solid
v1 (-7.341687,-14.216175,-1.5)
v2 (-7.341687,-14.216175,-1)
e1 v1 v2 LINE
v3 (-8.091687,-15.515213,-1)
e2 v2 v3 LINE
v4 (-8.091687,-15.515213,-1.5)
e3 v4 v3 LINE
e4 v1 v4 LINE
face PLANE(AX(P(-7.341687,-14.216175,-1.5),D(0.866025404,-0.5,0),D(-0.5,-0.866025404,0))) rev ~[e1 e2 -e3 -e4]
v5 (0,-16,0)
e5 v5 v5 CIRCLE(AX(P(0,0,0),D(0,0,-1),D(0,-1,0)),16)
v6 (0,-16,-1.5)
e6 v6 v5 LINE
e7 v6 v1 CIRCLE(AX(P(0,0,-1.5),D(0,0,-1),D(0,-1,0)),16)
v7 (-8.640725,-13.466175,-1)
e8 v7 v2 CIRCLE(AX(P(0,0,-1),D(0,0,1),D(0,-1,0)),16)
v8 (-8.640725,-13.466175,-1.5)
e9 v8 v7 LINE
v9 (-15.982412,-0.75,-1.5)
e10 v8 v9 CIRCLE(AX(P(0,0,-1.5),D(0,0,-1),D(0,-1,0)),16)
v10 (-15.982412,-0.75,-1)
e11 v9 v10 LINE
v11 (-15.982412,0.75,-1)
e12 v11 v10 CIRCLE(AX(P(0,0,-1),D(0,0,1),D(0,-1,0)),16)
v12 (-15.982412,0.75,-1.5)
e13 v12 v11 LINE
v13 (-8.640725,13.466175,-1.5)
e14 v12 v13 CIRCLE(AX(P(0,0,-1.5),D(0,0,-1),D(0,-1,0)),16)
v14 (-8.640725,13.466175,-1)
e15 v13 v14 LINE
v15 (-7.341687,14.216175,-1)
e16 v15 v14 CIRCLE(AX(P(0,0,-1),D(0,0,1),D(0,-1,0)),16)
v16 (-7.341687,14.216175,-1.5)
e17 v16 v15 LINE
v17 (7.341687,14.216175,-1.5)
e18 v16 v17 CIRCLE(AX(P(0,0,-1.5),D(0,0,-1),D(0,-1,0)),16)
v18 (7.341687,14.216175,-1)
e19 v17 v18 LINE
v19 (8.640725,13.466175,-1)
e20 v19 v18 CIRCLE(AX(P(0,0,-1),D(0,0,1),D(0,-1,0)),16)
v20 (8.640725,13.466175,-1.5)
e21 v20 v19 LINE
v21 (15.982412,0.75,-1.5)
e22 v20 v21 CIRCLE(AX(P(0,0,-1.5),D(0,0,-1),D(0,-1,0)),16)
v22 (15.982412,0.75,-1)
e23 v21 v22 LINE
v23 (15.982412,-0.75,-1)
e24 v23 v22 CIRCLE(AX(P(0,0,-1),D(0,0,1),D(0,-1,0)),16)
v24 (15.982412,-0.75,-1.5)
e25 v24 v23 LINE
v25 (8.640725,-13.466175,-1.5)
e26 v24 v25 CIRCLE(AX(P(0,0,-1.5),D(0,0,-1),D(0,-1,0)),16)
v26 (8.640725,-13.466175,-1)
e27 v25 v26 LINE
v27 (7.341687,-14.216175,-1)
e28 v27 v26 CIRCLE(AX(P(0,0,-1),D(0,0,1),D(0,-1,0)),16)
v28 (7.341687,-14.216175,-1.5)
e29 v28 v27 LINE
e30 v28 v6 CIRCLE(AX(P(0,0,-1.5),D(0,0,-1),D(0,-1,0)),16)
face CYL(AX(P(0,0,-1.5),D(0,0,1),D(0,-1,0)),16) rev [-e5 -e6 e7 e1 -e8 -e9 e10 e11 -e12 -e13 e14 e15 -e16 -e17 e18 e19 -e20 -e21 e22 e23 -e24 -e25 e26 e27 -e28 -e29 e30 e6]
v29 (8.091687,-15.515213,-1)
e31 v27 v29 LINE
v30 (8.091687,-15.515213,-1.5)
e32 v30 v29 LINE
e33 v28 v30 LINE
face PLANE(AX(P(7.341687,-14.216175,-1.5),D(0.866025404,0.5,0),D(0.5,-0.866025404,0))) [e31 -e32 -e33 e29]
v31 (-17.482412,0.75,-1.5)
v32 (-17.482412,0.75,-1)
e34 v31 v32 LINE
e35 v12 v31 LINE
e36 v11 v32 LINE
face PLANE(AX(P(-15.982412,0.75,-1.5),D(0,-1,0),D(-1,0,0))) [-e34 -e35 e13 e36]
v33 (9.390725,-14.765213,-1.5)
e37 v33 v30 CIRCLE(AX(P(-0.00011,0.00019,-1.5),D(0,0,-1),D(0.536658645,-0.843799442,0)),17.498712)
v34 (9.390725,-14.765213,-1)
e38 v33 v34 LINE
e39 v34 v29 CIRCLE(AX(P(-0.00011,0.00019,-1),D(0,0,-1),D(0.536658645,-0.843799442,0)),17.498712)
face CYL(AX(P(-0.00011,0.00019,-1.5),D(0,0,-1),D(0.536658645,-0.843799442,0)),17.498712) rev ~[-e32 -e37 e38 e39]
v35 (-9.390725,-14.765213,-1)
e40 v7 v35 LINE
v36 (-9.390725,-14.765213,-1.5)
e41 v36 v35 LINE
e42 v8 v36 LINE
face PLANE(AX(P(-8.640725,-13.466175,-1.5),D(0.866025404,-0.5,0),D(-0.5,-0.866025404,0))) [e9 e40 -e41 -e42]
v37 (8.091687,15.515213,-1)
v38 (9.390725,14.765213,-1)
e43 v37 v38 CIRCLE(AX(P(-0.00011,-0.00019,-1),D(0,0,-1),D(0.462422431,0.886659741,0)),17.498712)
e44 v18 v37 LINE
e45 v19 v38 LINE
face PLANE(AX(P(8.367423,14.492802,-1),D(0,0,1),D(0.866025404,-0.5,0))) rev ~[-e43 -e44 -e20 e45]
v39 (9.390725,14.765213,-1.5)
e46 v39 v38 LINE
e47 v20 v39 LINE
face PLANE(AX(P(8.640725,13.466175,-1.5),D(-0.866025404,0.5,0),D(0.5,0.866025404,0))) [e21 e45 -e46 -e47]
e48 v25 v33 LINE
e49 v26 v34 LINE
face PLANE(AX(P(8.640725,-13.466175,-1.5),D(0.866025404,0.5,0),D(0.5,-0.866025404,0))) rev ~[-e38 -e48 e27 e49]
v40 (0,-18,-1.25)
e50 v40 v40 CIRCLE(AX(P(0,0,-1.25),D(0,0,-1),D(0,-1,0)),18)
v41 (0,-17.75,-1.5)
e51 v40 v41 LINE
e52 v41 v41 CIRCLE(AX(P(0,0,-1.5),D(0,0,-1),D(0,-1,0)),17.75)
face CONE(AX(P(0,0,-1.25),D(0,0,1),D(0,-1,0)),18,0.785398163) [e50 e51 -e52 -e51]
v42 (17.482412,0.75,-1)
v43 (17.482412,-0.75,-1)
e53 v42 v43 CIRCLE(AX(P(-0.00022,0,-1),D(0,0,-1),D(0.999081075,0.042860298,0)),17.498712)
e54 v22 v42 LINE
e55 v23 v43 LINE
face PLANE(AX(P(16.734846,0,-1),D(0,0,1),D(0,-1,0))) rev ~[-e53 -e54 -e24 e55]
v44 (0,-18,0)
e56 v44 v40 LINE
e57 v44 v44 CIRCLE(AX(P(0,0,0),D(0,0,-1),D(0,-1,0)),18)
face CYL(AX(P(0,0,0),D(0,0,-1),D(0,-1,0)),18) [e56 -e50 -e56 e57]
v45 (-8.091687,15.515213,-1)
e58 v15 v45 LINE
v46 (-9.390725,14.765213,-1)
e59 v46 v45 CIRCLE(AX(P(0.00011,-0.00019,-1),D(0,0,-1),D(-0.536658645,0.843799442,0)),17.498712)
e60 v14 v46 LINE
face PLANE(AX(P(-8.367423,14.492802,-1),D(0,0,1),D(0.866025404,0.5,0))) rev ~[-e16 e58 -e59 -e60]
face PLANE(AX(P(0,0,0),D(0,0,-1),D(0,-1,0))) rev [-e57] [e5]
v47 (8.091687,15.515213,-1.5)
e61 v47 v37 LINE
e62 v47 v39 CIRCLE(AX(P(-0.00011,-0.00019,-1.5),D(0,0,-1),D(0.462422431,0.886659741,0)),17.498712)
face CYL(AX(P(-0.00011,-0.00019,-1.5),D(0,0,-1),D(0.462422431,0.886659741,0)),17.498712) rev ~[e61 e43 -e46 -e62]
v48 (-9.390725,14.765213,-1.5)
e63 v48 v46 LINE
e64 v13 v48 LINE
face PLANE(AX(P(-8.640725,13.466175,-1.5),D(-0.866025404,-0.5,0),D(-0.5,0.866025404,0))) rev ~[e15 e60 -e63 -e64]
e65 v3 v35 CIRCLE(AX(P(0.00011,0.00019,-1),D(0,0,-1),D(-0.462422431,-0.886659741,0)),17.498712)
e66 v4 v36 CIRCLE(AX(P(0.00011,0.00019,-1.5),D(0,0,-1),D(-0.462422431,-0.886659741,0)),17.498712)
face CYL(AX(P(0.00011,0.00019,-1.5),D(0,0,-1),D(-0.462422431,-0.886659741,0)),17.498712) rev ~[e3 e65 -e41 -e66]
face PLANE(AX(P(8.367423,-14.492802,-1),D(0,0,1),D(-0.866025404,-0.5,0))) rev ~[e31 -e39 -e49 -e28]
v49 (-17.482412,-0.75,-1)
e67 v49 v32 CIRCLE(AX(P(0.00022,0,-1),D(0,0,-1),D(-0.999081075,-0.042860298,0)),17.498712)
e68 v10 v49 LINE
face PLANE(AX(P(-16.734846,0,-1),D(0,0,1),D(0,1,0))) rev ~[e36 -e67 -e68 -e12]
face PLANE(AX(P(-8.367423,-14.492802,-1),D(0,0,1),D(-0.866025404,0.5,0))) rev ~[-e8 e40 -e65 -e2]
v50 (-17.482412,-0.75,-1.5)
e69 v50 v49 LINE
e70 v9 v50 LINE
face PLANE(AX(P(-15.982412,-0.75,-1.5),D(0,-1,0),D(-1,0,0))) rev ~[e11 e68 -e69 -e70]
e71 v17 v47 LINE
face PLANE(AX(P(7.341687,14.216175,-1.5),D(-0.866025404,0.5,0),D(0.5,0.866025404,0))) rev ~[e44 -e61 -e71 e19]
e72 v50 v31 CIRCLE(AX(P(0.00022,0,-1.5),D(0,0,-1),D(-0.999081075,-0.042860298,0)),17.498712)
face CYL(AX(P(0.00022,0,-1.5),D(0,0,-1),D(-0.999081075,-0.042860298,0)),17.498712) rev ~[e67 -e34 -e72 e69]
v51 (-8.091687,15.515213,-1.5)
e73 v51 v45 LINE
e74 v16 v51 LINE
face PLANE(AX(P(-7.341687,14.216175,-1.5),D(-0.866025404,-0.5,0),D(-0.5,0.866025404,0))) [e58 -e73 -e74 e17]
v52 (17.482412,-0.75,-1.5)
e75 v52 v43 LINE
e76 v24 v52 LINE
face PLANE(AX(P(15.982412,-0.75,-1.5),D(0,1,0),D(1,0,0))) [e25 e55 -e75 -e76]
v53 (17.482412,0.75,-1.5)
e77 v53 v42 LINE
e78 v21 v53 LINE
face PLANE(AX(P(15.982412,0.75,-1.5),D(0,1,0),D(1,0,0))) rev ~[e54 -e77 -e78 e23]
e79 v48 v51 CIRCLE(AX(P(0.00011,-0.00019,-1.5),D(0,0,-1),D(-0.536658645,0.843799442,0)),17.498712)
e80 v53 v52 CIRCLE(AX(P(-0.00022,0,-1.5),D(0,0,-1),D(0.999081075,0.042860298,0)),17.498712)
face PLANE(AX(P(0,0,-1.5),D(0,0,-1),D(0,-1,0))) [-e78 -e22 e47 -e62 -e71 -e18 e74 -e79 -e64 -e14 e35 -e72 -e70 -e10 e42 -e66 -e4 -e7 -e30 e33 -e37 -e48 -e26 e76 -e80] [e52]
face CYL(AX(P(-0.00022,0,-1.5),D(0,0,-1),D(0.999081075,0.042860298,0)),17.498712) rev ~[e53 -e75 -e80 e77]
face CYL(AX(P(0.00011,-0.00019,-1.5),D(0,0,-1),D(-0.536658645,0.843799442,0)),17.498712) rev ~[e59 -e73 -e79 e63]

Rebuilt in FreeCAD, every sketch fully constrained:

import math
import FreeCAD as App
import Part
import Sketcher
Q = App.Units.Quantity


def add_polygon(sketch, points):
    """Adds a closed chain of lines whose ends are joined by coincident constraints."""
    first, n = sketch.GeometryCount, len(points)
    for a, b in zip(points, points[1:] + points[:1]):
        sketch.addGeometry(Part.LineSegment(App.Vector(*a, 0), App.Vector(*b, 0)), False)
    for i in range(n):
        sketch.addConstraint(Sketcher.Constraint("Coincident", first + i, 2, first + (i + 1) % n, 1))

doc = App.newDocument("Part")
body = doc.addObject("PartDesign::Body", "Body")

# Sketch on YZ plane
sketch1 = doc.addObject("Sketcher::SketchObject", "Sketch")
body.addObject(sketch1)
sketch1.AttachmentSupport = (doc.YZ_Plane, [""])
sketch1.MapMode = "FlatFace"
add_polygon(sketch1, [(16, 0), (18, 0), (18, 1.25), (17.75, 1.5), (16, 1.5)])  # lines 0-4
sketch1.addConstraint(Sketcher.Constraint("Horizontal", 0))
sketch1.addConstraint(Sketcher.Constraint("Vertical", 1))
sketch1.addConstraint(Sketcher.Constraint("Horizontal", 3))
sketch1.addConstraint(Sketcher.Constraint("Vertical", 4))
sketch1.addConstraint(Sketcher.Constraint("PointOnObject", 0, 2, -1))
sketch1.addConstraint(Sketcher.Constraint("DistanceX", 0, 1, 0, 2, Q("2 mm")))
sketch1.addConstraint(Sketcher.Constraint("Angle", 2, Q("135 deg")))
sketch1.addConstraint(Sketcher.Constraint("DistanceY", 4, 2, 4, 1, Q("1.5 mm")))
sketch1.addConstraint(Sketcher.Constraint("DistanceX", -1, 1, 0, 2, Q("18 mm")))
sketch1.addConstraint(Sketcher.Constraint("DistanceX", 3, 2, 3, 1, Q("1.75 mm")))
revolution = doc.addObject("PartDesign::Revolution", "Revolution")
body.addObject(revolution)
revolution.Profile = sketch1
revolution.ReferenceAxis = (sketch1, ["V_Axis"])
revolution.Angle = 360

# Sketch on XY plane
sketch2 = doc.addObject("Sketcher::SketchObject", "Sketch001")
body.addObject(sketch2)
sketch2.AttachmentSupport = (doc.XY_Plane, [""])
sketch2.MapMode = "FlatFace"
sketch2.AttachmentOffset = App.Placement(App.Vector(0, 0, 1.5), App.Rotation())
sketch2.addGeometry(Part.LineSegment(App.Vector(17.5, 0.8, 0), App.Vector(16, 0.8, 0)), False)
sketch2.addGeometry(Part.LineSegment(App.Vector(16, 0.8, 0), App.Vector(16, -0.8, 0)), False)
sketch2.addGeometry(Part.LineSegment(App.Vector(16, -0.8, 0), App.Vector(17.5, -0.8, 0)), False)
sketch2.addGeometry(Part.ArcOfCircle(Part.Circle(App.Vector(0, 0, 0), App.Vector(0, 0, 1), 17.5), math.radians(-2.46), math.radians(2.46)), False)
sketch2.addConstraint(Sketcher.Constraint("Coincident", 0, 2, 1, 1))
sketch2.addConstraint(Sketcher.Constraint("Coincident", 1, 2, 2, 1))
sketch2.addConstraint(Sketcher.Constraint("Coincident", 2, 2, 3, 1))
sketch2.addConstraint(Sketcher.Constraint("Coincident", 3, 2, 0, 1))
sketch2.addConstraint(Sketcher.Constraint("Horizontal", 0))
sketch2.addConstraint(Sketcher.Constraint("Vertical", 1))
sketch2.addConstraint(Sketcher.Constraint("Horizontal", 2))
sketch2.addConstraint(Sketcher.Constraint("Symmetric", 2, 2, 3, 2, -1))
sketch2.addConstraint(Sketcher.Constraint("Equal", 2, 1))
sketch2.addConstraint(Sketcher.Constraint("DistanceX", 0, 2, 0, 1, Q("1.5 mm")))
sketch2.addConstraint(Sketcher.Constraint("Radius", 3, Q("17.498712 mm")))
sketch2.addConstraint(Sketcher.Constraint("DistanceX", 3, 3, -1, 1, Q("0.00022 mm")))
pocket1 = doc.addObject("PartDesign::Pocket", "Pocket")
body.addObject(pocket1)
pocket1.Profile = sketch2
pocket1.Length = 0.5
doc.recompute()

polarpattern = doc.addObject("PartDesign::PolarPattern", "PolarPattern")
body.addObject(polarpattern)
polarpattern.Originals = [pocket1]
polarpattern.Axis = (doc.Z_Axis, [""])
polarpattern.Angle = 360
polarpattern.Occurrences = 6
body.Tip = polarpattern
body2 = doc.addObject("PartDesign::Body", "Body001")
doc.recompute()

body.Placement = App.Placement(App.Vector(0, 0, 0), App.Rotation(App.Vector(1, 0, 0), 180))
boolean = doc.addObject("PartDesign::Boolean", "Boolean")
body2.addObject(boolean)
boolean.Type = "Fuse"
boolean.addObjects([body])

doc.recompute()
